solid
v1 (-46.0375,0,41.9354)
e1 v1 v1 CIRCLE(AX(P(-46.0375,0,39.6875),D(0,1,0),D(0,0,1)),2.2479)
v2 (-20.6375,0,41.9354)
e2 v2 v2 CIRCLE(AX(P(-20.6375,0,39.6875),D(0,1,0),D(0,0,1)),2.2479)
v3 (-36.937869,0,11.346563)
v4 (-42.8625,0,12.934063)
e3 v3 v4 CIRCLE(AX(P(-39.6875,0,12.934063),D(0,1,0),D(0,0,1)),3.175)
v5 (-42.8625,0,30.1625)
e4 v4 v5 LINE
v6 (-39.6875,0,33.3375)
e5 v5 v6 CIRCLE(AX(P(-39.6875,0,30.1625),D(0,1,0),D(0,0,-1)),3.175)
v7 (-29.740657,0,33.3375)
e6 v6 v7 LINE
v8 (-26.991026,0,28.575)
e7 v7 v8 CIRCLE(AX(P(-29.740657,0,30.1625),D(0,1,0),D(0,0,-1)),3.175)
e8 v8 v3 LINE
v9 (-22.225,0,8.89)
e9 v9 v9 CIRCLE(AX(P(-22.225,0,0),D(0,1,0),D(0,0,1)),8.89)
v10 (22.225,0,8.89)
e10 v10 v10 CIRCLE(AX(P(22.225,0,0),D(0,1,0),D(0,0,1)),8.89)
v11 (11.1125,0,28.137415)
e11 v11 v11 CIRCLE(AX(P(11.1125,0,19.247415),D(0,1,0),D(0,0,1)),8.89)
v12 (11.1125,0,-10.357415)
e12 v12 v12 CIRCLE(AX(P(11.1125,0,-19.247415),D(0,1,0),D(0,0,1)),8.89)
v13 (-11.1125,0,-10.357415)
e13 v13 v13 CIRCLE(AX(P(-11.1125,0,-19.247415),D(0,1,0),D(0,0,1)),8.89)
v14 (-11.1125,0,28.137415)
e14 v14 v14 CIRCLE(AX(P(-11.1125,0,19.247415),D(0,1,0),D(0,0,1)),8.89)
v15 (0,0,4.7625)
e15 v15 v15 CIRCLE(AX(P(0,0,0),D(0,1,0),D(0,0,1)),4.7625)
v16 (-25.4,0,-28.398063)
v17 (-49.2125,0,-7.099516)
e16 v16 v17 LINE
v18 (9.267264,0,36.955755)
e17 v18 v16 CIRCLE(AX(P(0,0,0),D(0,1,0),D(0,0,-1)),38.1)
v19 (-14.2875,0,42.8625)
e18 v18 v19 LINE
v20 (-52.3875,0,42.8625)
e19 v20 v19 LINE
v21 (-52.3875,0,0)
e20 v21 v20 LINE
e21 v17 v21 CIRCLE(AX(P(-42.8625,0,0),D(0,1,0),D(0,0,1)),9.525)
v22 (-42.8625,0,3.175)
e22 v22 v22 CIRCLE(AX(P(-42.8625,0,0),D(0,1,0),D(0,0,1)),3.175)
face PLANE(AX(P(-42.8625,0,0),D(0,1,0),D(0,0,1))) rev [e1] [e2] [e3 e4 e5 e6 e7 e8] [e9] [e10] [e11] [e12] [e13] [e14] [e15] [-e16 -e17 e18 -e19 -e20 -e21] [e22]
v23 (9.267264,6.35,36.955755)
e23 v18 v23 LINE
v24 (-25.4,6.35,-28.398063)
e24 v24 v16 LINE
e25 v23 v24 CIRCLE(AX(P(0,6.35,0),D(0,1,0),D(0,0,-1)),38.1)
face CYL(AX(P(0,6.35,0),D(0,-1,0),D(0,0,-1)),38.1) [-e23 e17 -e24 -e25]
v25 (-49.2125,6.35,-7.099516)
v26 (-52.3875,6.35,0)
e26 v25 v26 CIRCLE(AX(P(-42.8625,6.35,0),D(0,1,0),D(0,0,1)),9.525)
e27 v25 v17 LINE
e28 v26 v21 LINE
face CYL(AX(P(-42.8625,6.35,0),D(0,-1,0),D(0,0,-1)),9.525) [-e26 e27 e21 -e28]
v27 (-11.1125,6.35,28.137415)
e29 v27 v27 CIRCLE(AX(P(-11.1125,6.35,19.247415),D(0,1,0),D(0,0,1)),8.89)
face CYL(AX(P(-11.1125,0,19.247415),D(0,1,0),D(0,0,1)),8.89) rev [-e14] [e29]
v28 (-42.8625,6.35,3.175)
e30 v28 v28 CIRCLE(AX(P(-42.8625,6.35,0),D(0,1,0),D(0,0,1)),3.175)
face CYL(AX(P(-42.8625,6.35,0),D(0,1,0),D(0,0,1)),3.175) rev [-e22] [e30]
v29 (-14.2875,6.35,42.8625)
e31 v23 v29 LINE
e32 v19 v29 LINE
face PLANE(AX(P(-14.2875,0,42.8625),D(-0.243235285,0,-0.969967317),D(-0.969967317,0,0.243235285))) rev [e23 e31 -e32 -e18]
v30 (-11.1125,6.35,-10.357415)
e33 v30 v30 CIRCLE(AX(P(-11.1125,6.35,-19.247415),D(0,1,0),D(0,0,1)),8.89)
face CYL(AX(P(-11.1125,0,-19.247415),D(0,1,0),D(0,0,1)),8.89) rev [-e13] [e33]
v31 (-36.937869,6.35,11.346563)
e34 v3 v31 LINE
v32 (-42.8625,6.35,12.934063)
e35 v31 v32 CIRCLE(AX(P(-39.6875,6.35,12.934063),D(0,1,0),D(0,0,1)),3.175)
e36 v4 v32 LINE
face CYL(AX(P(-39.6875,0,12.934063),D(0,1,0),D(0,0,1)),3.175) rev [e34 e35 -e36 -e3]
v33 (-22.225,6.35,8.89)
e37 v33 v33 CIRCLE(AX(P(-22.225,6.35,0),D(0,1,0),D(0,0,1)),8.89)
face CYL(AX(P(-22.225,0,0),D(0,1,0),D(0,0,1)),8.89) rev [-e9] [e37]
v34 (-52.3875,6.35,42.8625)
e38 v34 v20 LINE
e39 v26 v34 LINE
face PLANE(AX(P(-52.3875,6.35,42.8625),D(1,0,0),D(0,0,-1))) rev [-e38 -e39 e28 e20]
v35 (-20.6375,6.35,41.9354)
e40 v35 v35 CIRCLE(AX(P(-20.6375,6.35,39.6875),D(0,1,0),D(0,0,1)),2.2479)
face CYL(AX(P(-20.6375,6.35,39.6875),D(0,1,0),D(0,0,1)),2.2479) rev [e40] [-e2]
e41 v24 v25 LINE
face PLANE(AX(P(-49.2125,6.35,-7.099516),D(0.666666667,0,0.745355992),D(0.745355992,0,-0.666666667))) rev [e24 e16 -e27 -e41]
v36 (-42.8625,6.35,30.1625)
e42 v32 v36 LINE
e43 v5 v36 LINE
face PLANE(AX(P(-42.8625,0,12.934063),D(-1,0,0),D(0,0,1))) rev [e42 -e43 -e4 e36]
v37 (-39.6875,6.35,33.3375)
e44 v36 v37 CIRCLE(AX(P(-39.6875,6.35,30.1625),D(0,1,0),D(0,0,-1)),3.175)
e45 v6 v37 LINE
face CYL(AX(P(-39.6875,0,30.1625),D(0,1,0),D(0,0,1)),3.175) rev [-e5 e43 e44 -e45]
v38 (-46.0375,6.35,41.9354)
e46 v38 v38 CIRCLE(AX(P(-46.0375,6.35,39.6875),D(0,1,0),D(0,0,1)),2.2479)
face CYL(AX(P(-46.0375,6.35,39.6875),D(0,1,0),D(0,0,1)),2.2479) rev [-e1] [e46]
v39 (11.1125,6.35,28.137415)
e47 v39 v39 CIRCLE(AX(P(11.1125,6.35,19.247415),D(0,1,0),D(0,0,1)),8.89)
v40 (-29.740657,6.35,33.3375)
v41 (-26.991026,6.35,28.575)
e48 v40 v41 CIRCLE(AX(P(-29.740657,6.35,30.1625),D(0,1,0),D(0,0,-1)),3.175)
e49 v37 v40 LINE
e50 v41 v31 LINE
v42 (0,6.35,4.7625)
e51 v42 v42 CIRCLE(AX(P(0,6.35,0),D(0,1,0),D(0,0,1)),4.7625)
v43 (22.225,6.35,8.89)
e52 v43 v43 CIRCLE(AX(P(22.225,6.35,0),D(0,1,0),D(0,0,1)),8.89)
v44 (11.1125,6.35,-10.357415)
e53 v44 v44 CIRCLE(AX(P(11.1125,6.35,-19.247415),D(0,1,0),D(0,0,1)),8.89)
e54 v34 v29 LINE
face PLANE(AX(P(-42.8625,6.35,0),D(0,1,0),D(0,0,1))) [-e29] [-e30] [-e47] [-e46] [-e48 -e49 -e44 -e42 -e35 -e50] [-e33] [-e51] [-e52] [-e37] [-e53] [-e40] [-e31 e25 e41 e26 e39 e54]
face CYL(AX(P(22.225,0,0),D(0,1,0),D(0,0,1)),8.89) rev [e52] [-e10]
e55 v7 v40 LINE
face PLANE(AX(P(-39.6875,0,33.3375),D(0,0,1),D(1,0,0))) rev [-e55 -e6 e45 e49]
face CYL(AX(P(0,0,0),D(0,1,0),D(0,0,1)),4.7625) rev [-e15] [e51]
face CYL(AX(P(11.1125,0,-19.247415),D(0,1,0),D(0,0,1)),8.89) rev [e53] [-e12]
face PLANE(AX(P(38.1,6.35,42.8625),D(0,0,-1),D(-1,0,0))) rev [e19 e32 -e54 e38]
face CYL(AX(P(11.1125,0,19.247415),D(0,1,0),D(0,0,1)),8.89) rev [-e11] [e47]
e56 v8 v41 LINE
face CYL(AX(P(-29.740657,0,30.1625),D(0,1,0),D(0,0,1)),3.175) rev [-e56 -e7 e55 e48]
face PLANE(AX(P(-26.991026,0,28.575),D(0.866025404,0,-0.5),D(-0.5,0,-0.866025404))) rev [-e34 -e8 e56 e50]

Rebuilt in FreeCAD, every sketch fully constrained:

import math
import FreeCAD as App
import Part
import Sketcher
Q = App.Units.Quantity

doc = App.newDocument("Part")
params = doc.addObject("Spreadsheet::Sheet", "Params")
for row, (alias, value) in enumerate([
    ("sketch1_radius", "1.5 in"),
    ("sketch1_radius2", "0.375 in"),
    ("sketch1_height", "1.6875 in"),
    ("pad1_length", "0.25 in"),
    ("sketch2_diameter", "0.25 in"),
    ("hole_diameter", "0.25 in"),
    ("hole_depth", "0.65 in"),
    ("sketch3_diameter", "0.177 in"),
    ("hole2_diameter", "0.177 in"),
    ("hole2_depth", "0.65 in"),
    ("sketch4_diameter", "0.375 in"),
    ("sketch5_radius", "1.5 in"),
    ("sketch5_width", "2.0625 in"),
    ("sketch5_height", "1.6875 in"),
    ("sketch6_diameter", "0.7 in"),
    ("sketch6_radius", "0.125 in"),
], start=1):
    params.set(f"A{row}", alias)
    params.set(f"B{row}", "=" + value)
    params.setAlias(f"B{row}", alias)

body = doc.addObject("PartDesign::Body", "Body")

# Sketch on XZ plane
sketch1 = doc.addObject("Sketcher::SketchObject", "Sketch")
body.addObject(sketch1)
sketch1.AttachmentSupport = (doc.XZ_Plane, [""])
sketch1.MapMode = "FlatFace"
sketch1.addGeometry(Part.LineSegment(App.Vector(-52, 0, 0), App.Vector(-52, 43, 0)), False)
sketch1.addGeometry(Part.LineSegment(App.Vector(-52, 43, 0), App.Vector(38, 43, 0)), False)
sketch1.addGeometry(Part.LineSegment(App.Vector(38, 43, 0), App.Vector(38, 0, 0)), False)
sketch1.addGeometry(Part.ArcOfCircle(Part.Circle(App.Vector(0, 0, 0), App.Vector(0, 0, 1), 38), math.radians(-132), math.radians(0)), False)
sketch1.addGeometry(Part.LineSegment(App.Vector(-25, -28, 0), App.Vector(-49, -7, 0)), False)
sketch1.addGeometry(Part.ArcOfCircle(Part.Circle(App.Vector(-43, 0, 0), App.Vector(0, 0, 1), 10), math.radians(-180), math.radians(-132)), False)
sketch1.addConstraint(Sketcher.Constraint("Coincident", 0, 2, 1, 1))
sketch1.addConstraint(Sketcher.Constraint("Coincident", 1, 2, 2, 1))
sketch1.addConstraint(Sketcher.Constraint("Tangent", 2, 2, 3, 2))
sketch1.addConstraint(Sketcher.Constraint("Tangent", 3, 1, 4, 1))
sketch1.addConstraint(Sketcher.Constraint("Tangent", 4, 2, 5, 2))
sketch1.addConstraint(Sketcher.Constraint("Tangent", 5, 1, 0, 1))
sketch1.addConstraint(Sketcher.Constraint("Vertical", 0))
sketch1.addConstraint(Sketcher.Constraint("Horizontal", 1))
sketch1.addConstraint(Sketcher.Constraint("Vertical", 2))
sketch1.addConstraint(Sketcher.Constraint("Coincident", 3, 3, -1, 1))
sketch1.addConstraint(Sketcher.Constraint("PointOnObject", 5, 3, -1))
sketch1.addConstraint(Sketcher.Constraint("Radius", 3, Q("1.5 in")))
sketch1.addConstraint(Sketcher.Constraint("DistanceX", 3, 1, -1, 1, Q("1 in")))
sketch1.addConstraint(Sketcher.Constraint("Radius", 5, Q("0.375 in")))
sketch1.addConstraint(Sketcher.Constraint("DistanceY", 0, 1, 0, 2, Q("1.6875 in")))
sketch1.setExpression("Constraints[11]", "Params.sketch1_radius")
sketch1.setExpression("Constraints[13]", "Params.sketch1_radius2")
sketch1.setExpression("Constraints[14]", "Params.sketch1_height")
pad1 = doc.addObject("PartDesign::Pad", "Pad")
body.addObject(pad1)
pad1.Profile = sketch1
pad1.setExpression("Length", "Params.pad1_length")
pad1.Reversed = True

# Sketch on XZ plane
sketch2 = doc.addObject("Sketcher::SketchObject", "Sketch001")
body.addObject(sketch2)
sketch2.AttachmentSupport = (doc.XZ_Plane, [""])
sketch2.MapMode = "FlatFace"
sketch2.AttachmentOffset = App.Placement(App.Vector(0, 0, -0.25 * 25.4), App.Rotation())
sketch2.addGeometry(Part.Circle(App.Vector(-42.9, 0, 0), App.Vector(0, 0, 1), 3.2), False)
sketch2.addConstraint(Sketcher.Constraint("PointOnObject", 0, 3, -1))
sketch2.addConstraint(Sketcher.Constraint("Diameter", 0, Q("0.25 in")))
sketch2.addConstraint(Sketcher.Constraint("DistanceX", 0, 3, -1, 1, Q("1.6875 in")))
sketch2.setExpression("Constraints[1]", "Params.sketch2_diameter")
doc.recompute()
hole = doc.addObject("PartDesign::Hole", "Hole")
body.addObject(hole)
hole.Profile = sketch2
hole.ThreadType = "None"
hole.setExpression("Diameter", "Params.hole_diameter")
hole.DepthType = "Dimension"
hole.setExpression("Depth", "Params.hole_depth")
hole.DrillPoint = "Angled"
hole.DrillPointAngle = 118
hole.Reversed = True

# Sketch on XZ plane
sketch3 = doc.addObject("Sketcher::SketchObject", "Sketch002")
body.addObject(sketch3)
sketch3.AttachmentSupport = (doc.XZ_Plane, [""])
sketch3.MapMode = "FlatFace"
sketch3.AttachmentOffset = App.Placement(App.Vector(0, 0, -0.25 * 25.4), App.Rotation())
sketch3.addGeometry(Part.Circle(App.Vector(-46, 39.7, 0), App.Vector(0, 0, 1), 2.2), False)
sketch3.addGeometry(Part.Circle(App.Vector(-20.6, 39.7, 0), App.Vector(0, 0, 1), 2.2), False)
sketch3.addConstraint(Sketcher.Constraint("Equal", 0, 1))
sketch3.addConstraint(Sketcher.Constraint("Horizontal", 0, 3, 1, 3))
sketch3.addConstraint(Sketcher.Constraint("Diameter", 0, Q("0.177 in")))
sketch3.addConstraint(Sketcher.Constraint("DistanceX", 0, 3, 1, 3, Q("1 in")))
sketch3.addConstraint(Sketcher.Constraint("DistanceX", 0, 3, -1, 1, Q("1.8125 in")))
sketch3.addConstraint(Sketcher.Constraint("DistanceY", -1, 1, 0, 3, Q("1.5625 in")))
sketch3.setExpression("Constraints[2]", "Params.sketch3_diameter")
doc.recompute()
hole2 = doc.addObject("PartDesign::Hole", "Hole001")
body.addObject(hole2)
hole2.Profile = sketch3
hole2.ThreadType = "None"
hole2.setExpression("Diameter", "Params.hole2_diameter")
hole2.DepthType = "Dimension"
hole2.setExpression("Depth", "Params.hole2_depth")
hole2.DrillPoint = "Angled"
hole2.DrillPointAngle = 118
hole2.Reversed = True

# Sketch on XZ plane
sketch4 = doc.addObject("Sketcher::SketchObject", "Sketch003")
body.addObject(sketch4)
sketch4.AttachmentSupport = (doc.XZ_Plane, [""])
sketch4.MapMode = "FlatFace"
sketch4.AttachmentOffset = App.Placement(App.Vector(0, 0, -0.25 * 25.4), App.Rotation())
sketch4.addGeometry(Part.Circle(App.Vector(0, 0, 0), App.Vector(0, 0, 1), 4.8), False)
sketch4.addConstraint(Sketcher.Constraint("Coincident", 0, 3, -1, 1))
sketch4.addConstraint(Sketcher.Constraint("Diameter", 0, Q("0.375 in")))
sketch4.setExpression("Constraints[1]", "Params.sketch4_diameter")
pocket1 = doc.addObject("PartDesign::Pocket", "Pocket")
body.addObject(pocket1)
pocket1.Profile = sketch4
pocket1.Type = "ThroughAll"
pocket1.Reversed = True

# Sketch on XZ plane
sketch5 = doc.addObject("Sketcher::SketchObject", "Sketch004")
body.addObject(sketch5)
sketch5.AttachmentSupport = (doc.XZ_Plane, [""])
sketch5.MapMode = "FlatFace"
sketch5.AttachmentOffset = App.Placement(App.Vector(0, 0, -0.25 * 25.4), App.Rotation())
sketch5.addGeometry(Part.LineSegment(App.Vector(9, 37, 0), App.Vector(-14, 43, 0)), False)
sketch5.addGeometry(Part.LineSegment(App.Vector(-14, 43, 0), App.Vector(38, 43, 0)), False)
sketch5.addGeometry(Part.LineSegment(App.Vector(38, 43, 0), App.Vector(38, 0, 0)), False)
sketch5.addGeometry(Part.ArcOfCircle(Part.Circle(App.Vector(0, 0, 0), App.Vector(0, 0, 1), 38), math.radians(0), math.radians(76)), False)
sketch5.addConstraint(Sketcher.Constraint("Coincident", 0, 2, 1, 1))
sketch5.addConstraint(Sketcher.Constraint("Coincident", 1, 2, 2, 1))
sketch5.addConstraint(Sketcher.Constraint("Tangent", 2, 2, 3, 1))
sketch5.addConstraint(Sketcher.Constraint("Tangent", 3, 2, 0, 1))
sketch5.addConstraint(Sketcher.Constraint("Horizontal", 1))
sketch5.addConstraint(Sketcher.Constraint("Vertical", 2))
sketch5.addConstraint(Sketcher.Constraint("Coincident", 3, 3, -1, 1))
sketch5.addConstraint(Sketcher.Constraint("Radius", 3, Q("1.5 in")))
sketch5.addConstraint(Sketcher.Constraint("DistanceX", 1, 1, 1, 2, Q("2.0625 in")))
sketch5.addConstraint(Sketcher.Constraint("DistanceY", 2, 2, 2, 1, Q("1.6875 in")))
sketch5.setExpression("Constraints[7]", "Params.sketch5_radius")
sketch5.setExpression("Constraints[8]", "Params.sketch5_width")
sketch5.setExpression("Constraints[9]", "Params.sketch5_height")
pocket2 = doc.addObject("PartDesign::Pocket", "Pocket001")
body.addObject(pocket2)
pocket2.Profile = sketch5
pocket2.Type = "ThroughAll"
pocket2.Reversed = True

# Sketch on XZ plane
sketch6 = doc.addObject("Sketcher::SketchObject", "Sketch005")
body.addObject(sketch6)
sketch6.AttachmentSupport = (doc.XZ_Plane, [""])
sketch6.MapMode = "FlatFace"
sketch6.AttachmentOffset = App.Placement(App.Vector(0, 0, -0.25 * 25.4), App.Rotation())
sketch6.addGeometry(Part.Circle(App.Vector(-22.2, 0, 0), App.Vector(0, 0, 1), 8.9), False)
sketch6.addGeometry(Part.Circle(App.Vector(-11.1, -19.2, 0), App.Vector(0, 0, 1), 8.9), False)
sketch6.addGeometry(Part.Circle(App.Vector(11.1, -19.2, 0), App.Vector(0, 0, 1), 8.9), False)
sketch6.addGeometry(Part.Circle(App.Vector(22.2, 0, 0), App.Vector(0, 0, 1), 8.9), False)
sketch6.addGeometry(Part.Circle(App.Vector(11.1, 19.2, 0), App.Vector(0, 0, 1), 8.9), False)
sketch6.addGeometry(Part.Circle(App.Vector(-11.1, 19.2, 0), App.Vector(0, 0, 1), 8.9), False)
sketch6.addGeometry(Part.LineSegment(App.Vector(-42.9, 12.9, 0), App.Vector(-42.9, 30.2, 0)), False)
sketch6.addGeometry(Part.ArcOfCircle(Part.Circle(App.Vector(-39.7, 30.2, 0), App.Vector(0, 0, 1), 3.2), math.radians(90), math.radians(180)), False)
sketch6.addGeometry(Part.LineSegment(App.Vector(-39.7, 33.3, 0), App.Vector(-29.7, 33.3, 0)), False)
sketch6.addGeometry(Part.ArcOfCircle(Part.Circle(App.Vector(-29.7, 30.2, 0), App.Vector(0, 0, 1), 3.2), math.radians(-30), math.radians(90)), False)
sketch6.addGeometry(Part.LineSegment(App.Vector(-27, 28.6, 0), App.Vector(-36.9, 11.3, 0)), False)
sketch6.addGeometry(Part.ArcOfCircle(Part.Circle(App.Vector(-39.7, 12.9, 0), App.Vector(0, 0, 1), 3.2), math.radians(180), math.radians(330)), False)
sketch6.addConstraint(Sketcher.Constraint("Tangent", 6, 2, 7, 2))
sketch6.addConstraint(Sketcher.Constraint("Tangent", 7, 1, 8, 1))
sketch6.addConstraint(Sketcher.Constraint("Tangent", 8, 2, 9, 2))
sketch6.addConstraint(Sketcher.Constraint("Tangent", 9, 1, 10, 1))
sketch6.addConstraint(Sketcher.Constraint("Tangent", 10, 2, 11, 2))
sketch6.addConstraint(Sketcher.Constraint("Tangent", 11, 1, 6, 1))
sketch6.addConstraint(Sketcher.Constraint("Vertical", 6))
sketch6.addConstraint(Sketcher.Constraint("Horizontal", 8))
sketch6.addConstraint(Sketcher.Constraint("Equal", 0, 1))
sketch6.addConstraint(Sketcher.Constraint("Equal", 1, 2))
sketch6.addConstraint(Sketcher.Constraint("Equal", 2, 3))
sketch6.addConstraint(Sketcher.Constraint("Equal", 3, 4))
sketch6.addConstraint(Sketcher.Constraint("Equal", 4, 5))
sketch6.addConstraint(Sketcher.Constraint("Equal", 7, 9))
sketch6.addConstraint(Sketcher.Constraint("Equal", 9, 11))
sketch6.addConstraint(Sketcher.Constraint("Symmetric", 0, 3, 3, 3, -1, 1))
sketch6.addConstraint(Sketcher.Constraint("Symmetric", 1, 3, 4, 3, -1, 1))
sketch6.addConstraint(Sketcher.Constraint("Symmetric", 2, 3, 5, 3, -1, 1))
sketch6.addConstraint(Sketcher.Constraint("Symmetric", 1, 3, 2, 3, -2))
sketch6.addConstraint(Sketcher.Constraint("PointOnObject", 0, 3, -1))
sketch6.addConstraint(Sketcher.Constraint("Diameter", 0, Q("0.7 in")))
sketch6.addConstraint(Sketcher.Constraint("Angle", 10, Q("-120 deg")))
sketch6.addConstraint(Sketcher.Constraint("Radius", 7, Q("0.125 in")))
sketch6.addConstraint(Sketcher.Constraint("DistanceX", 7, 3, 4, 3, Q("2 in")))
sketch6.addConstraint(Sketcher.Constraint("DistanceX", 0, 3, 3, 3, Q("1.75 in")))
sketch6.addConstraint(Sketcher.Constraint("DistanceX", 6, 2, 5, 3, Q("1.25 in")))
sketch6.addConstraint(Sketcher.Constraint("DistanceY", -1, 1, 7, 3, Q("1.1875 in")))
sketch6.addConstraint(Sketcher.Constraint("DistanceX", 8, 1, 8, 2, Q("9.946843 mm")))
sketch6.addConstraint(Sketcher.Constraint("DistanceY", 2, 3, 4, 3, Q("38.494829 mm")))
sketch6.setExpression("Constraints[20]", "Params.sketch6_diameter")
sketch6.setExpression("Constraints[22]", "Params.sketch6_radius")
pocket3 = doc.addObject("PartDesign::Pocket", "Pocket002")
body.addObject(pocket3)
pocket3.Profile = sketch6
pocket3.Type = "ThroughAll"
pocket3.Reversed = True

doc.recompute()
